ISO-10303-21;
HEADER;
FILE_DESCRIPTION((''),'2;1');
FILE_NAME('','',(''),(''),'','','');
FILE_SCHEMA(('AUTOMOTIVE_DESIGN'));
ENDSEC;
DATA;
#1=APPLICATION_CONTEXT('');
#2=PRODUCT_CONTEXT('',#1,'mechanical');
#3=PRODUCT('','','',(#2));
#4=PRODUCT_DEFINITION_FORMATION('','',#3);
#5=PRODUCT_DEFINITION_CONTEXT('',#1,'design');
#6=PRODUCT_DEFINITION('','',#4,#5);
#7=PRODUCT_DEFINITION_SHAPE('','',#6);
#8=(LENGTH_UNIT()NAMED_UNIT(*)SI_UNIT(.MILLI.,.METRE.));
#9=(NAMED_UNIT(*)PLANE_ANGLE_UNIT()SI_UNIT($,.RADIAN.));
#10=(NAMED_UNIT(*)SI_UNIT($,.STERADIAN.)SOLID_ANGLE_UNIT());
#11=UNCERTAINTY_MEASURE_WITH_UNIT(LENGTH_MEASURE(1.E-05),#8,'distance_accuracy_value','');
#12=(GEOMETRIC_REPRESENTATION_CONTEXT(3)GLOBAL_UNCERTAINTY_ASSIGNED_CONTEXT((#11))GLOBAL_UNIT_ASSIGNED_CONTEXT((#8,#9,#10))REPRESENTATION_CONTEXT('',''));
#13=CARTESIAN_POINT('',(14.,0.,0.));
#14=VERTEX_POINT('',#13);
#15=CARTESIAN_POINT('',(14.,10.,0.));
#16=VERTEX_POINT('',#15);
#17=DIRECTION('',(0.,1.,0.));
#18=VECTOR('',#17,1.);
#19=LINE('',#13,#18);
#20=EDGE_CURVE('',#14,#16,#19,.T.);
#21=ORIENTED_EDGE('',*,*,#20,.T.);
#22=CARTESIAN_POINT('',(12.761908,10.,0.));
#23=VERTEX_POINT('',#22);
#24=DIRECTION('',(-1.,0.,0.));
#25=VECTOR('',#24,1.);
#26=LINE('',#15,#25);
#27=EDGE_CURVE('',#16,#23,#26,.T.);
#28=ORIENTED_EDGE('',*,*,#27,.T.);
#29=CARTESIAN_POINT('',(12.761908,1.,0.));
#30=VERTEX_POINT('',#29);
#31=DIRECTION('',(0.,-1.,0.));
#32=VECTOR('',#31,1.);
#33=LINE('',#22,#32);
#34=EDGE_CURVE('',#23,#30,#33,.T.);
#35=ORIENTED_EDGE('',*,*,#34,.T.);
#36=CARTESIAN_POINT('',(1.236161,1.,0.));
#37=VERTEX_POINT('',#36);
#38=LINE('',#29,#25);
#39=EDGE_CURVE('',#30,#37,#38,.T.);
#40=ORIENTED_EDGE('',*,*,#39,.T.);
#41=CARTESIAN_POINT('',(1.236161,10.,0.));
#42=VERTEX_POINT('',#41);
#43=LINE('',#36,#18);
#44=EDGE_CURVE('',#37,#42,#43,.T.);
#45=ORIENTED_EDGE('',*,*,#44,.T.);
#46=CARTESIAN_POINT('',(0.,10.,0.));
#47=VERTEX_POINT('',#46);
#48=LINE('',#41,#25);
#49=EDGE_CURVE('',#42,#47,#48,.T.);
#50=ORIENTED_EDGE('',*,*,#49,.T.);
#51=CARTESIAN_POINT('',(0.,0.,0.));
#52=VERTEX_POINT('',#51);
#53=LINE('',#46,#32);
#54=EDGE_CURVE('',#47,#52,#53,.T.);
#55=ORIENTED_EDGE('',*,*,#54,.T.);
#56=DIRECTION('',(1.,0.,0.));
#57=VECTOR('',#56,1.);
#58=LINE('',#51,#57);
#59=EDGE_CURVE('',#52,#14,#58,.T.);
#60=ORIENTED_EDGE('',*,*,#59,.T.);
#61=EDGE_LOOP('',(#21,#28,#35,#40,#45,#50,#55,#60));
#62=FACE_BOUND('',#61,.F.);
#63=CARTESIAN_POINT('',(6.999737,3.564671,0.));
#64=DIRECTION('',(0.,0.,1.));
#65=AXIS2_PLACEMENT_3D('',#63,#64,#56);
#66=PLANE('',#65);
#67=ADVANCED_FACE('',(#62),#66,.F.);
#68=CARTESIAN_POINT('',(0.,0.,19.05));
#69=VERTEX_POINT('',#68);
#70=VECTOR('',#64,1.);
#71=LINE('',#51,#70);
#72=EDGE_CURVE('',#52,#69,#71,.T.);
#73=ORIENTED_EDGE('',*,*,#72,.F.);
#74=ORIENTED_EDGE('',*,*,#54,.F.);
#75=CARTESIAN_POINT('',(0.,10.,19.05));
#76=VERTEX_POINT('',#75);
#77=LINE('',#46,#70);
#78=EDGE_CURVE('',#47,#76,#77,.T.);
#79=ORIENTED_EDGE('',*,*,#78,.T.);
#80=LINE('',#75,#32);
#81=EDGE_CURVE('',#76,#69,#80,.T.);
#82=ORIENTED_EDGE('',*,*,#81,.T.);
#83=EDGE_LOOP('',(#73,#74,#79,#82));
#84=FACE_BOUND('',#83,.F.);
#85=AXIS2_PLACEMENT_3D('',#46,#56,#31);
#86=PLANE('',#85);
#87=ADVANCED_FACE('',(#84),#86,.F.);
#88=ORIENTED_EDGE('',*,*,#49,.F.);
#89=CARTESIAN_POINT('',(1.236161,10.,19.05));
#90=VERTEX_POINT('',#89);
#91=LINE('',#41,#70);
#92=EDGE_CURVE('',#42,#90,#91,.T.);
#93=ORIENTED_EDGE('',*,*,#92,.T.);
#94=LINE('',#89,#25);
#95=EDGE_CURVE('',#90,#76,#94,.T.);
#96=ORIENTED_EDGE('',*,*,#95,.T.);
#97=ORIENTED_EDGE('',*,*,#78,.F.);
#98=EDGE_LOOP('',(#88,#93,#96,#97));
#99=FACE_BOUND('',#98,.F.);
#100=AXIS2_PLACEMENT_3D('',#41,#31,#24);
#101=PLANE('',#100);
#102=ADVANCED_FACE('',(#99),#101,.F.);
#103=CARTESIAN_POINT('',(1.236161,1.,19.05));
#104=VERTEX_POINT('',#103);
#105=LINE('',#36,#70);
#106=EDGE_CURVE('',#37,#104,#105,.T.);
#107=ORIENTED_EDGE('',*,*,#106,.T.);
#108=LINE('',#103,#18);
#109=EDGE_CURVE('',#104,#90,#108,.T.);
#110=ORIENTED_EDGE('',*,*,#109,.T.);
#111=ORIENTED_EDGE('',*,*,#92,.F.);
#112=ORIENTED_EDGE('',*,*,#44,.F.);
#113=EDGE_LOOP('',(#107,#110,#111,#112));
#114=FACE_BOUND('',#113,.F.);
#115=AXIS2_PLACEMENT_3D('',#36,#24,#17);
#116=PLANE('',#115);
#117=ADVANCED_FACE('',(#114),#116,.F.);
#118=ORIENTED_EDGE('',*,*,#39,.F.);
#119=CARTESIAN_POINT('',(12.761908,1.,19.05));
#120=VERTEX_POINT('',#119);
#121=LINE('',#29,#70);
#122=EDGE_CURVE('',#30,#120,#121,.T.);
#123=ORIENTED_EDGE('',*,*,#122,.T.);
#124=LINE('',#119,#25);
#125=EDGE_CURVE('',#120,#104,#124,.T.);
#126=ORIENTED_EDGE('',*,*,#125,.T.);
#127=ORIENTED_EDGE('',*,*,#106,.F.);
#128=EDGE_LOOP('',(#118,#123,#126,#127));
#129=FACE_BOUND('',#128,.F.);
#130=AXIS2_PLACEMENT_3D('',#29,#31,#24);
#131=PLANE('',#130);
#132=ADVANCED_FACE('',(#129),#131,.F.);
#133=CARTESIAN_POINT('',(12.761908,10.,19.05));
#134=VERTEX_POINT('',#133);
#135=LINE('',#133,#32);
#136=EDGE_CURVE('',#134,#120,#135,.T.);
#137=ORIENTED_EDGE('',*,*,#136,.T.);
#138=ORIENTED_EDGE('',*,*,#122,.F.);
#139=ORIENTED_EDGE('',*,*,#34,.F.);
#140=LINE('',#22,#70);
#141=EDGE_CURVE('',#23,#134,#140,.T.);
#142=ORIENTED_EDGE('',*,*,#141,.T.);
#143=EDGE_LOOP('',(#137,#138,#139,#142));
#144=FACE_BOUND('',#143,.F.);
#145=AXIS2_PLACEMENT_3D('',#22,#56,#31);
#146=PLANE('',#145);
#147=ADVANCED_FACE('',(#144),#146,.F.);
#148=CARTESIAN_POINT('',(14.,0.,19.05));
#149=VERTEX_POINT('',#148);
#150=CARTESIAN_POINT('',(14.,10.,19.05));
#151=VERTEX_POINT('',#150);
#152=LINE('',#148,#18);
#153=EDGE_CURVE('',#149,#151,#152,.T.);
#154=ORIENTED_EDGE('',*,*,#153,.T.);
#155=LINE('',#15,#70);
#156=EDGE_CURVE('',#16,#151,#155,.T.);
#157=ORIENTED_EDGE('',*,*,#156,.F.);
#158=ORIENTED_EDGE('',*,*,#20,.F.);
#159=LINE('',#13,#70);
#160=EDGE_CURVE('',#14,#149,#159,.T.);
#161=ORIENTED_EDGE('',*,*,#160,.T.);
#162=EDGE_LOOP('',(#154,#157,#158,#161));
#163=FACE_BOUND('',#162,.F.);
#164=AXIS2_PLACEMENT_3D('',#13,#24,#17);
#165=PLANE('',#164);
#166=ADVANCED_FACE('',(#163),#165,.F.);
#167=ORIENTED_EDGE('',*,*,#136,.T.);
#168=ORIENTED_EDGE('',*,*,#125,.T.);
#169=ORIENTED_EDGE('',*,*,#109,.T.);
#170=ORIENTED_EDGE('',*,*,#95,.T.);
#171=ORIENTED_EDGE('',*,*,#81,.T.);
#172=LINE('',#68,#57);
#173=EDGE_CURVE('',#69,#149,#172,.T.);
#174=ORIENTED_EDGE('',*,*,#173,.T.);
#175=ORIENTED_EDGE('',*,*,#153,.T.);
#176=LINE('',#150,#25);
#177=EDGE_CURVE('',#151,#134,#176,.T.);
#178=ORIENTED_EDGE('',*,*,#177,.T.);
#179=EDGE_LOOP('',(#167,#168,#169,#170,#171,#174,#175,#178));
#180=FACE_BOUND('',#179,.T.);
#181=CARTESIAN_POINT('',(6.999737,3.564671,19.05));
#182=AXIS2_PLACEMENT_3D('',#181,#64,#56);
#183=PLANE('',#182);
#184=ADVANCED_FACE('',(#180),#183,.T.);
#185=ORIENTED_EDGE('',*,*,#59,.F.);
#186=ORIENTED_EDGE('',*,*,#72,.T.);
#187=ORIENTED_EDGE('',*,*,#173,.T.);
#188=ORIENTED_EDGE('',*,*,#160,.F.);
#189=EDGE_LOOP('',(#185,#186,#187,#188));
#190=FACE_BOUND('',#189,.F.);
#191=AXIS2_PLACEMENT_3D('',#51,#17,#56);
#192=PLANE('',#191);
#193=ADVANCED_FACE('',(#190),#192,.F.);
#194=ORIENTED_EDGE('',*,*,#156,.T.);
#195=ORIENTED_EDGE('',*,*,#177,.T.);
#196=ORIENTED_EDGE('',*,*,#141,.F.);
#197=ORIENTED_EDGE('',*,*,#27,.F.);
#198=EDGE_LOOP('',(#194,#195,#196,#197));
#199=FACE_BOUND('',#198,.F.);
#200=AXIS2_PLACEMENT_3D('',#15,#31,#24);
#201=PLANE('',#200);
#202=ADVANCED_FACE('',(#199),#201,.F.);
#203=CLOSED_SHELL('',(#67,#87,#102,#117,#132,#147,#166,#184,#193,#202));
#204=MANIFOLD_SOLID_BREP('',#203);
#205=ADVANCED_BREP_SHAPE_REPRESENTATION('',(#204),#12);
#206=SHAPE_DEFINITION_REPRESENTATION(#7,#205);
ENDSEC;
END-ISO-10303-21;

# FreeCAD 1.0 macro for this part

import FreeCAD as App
import Part
import Sketcher
from FreeCAD import Vector

doc = App.newDocument("Part")
body = doc.addObject("PartDesign::Body", "Body")

# Sketch on XY plane
sketch1 = body.newObject("Sketcher::SketchObject", "Sketch")
sketch1.AttachmentSupport = (doc.getObject("XY_Plane"), [""])
sketch1.MapMode = "FlatFace"
sketch1.addGeometry([
    Part.LineSegment(Vector(0, 0, 0), Vector(14, 0, 0)),  # 0
    Part.LineSegment(Vector(14, 0, 0), Vector(14, 10, 0)),  # 1
    Part.LineSegment(Vector(14, 10, 0), Vector(12.8, 10, 0)),  # 2
    Part.LineSegment(Vector(12.8, 10, 0), Vector(12.8, 1, 0)),  # 3
    Part.LineSegment(Vector(12.8, 1, 0), Vector(1.2, 1, 0)),  # 4
    Part.LineSegment(Vector(1.2, 1, 0), Vector(1.2, 10, 0)),  # 5
    Part.LineSegment(Vector(1.2, 10, 0), Vector(0, 10, 0)),  # 6
    Part.LineSegment(Vector(0, 10, 0), Vector(0, 0, 0)),  # 7
], False)
sketch1.addConstraint([
    Sketcher.Constraint("Coincident", 0, 2, 1, 1),
    Sketcher.Constraint("Coincident", 1, 2, 2, 1),
    Sketcher.Constraint("Coincident", 2, 2, 3, 1),
    Sketcher.Constraint("Coincident", 3, 2, 4, 1),
    Sketcher.Constraint("Coincident", 4, 2, 5, 1),
    Sketcher.Constraint("Coincident", 5, 2, 6, 1),
    Sketcher.Constraint("Coincident", 6, 2, 7, 1),
    Sketcher.Constraint("Coincident", 7, 2, 0, 1),
    Sketcher.Constraint("Horizontal", 0),
    Sketcher.Constraint("Vertical", 1),
    Sketcher.Constraint("Horizontal", 2),
    Sketcher.Constraint("Vertical", 3),
    Sketcher.Constraint("Horizontal", 4),
    Sketcher.Constraint("Vertical", 5),
    Sketcher.Constraint("Horizontal", 6),
    Sketcher.Constraint("Vertical", 7),
    Sketcher.Constraint("Coincident", 7, 2, -1, 1),
    Sketcher.Constraint("Horizontal", 2, 2, 5, 2),
    Sketcher.Constraint("DistanceX", 0, 1, 0, 2, 14.0),
    Sketcher.Constraint("DistanceY", 1, 1, 1, 2, 10.0),
    Sketcher.Constraint("DistanceY", 3, 2, 3, 1, 9.0),
    Sketcher.Constraint("DistanceX", 6, 2, 6, 1, 1.236161),
    Sketcher.Constraint("DistanceX", 2, 2, 2, 1, 1.238092),
])
pad1 = body.newObject("PartDesign::Pad", "Pad")
pad1.Profile = sketch1
pad1.Length = 19.05

doc.recompute()
